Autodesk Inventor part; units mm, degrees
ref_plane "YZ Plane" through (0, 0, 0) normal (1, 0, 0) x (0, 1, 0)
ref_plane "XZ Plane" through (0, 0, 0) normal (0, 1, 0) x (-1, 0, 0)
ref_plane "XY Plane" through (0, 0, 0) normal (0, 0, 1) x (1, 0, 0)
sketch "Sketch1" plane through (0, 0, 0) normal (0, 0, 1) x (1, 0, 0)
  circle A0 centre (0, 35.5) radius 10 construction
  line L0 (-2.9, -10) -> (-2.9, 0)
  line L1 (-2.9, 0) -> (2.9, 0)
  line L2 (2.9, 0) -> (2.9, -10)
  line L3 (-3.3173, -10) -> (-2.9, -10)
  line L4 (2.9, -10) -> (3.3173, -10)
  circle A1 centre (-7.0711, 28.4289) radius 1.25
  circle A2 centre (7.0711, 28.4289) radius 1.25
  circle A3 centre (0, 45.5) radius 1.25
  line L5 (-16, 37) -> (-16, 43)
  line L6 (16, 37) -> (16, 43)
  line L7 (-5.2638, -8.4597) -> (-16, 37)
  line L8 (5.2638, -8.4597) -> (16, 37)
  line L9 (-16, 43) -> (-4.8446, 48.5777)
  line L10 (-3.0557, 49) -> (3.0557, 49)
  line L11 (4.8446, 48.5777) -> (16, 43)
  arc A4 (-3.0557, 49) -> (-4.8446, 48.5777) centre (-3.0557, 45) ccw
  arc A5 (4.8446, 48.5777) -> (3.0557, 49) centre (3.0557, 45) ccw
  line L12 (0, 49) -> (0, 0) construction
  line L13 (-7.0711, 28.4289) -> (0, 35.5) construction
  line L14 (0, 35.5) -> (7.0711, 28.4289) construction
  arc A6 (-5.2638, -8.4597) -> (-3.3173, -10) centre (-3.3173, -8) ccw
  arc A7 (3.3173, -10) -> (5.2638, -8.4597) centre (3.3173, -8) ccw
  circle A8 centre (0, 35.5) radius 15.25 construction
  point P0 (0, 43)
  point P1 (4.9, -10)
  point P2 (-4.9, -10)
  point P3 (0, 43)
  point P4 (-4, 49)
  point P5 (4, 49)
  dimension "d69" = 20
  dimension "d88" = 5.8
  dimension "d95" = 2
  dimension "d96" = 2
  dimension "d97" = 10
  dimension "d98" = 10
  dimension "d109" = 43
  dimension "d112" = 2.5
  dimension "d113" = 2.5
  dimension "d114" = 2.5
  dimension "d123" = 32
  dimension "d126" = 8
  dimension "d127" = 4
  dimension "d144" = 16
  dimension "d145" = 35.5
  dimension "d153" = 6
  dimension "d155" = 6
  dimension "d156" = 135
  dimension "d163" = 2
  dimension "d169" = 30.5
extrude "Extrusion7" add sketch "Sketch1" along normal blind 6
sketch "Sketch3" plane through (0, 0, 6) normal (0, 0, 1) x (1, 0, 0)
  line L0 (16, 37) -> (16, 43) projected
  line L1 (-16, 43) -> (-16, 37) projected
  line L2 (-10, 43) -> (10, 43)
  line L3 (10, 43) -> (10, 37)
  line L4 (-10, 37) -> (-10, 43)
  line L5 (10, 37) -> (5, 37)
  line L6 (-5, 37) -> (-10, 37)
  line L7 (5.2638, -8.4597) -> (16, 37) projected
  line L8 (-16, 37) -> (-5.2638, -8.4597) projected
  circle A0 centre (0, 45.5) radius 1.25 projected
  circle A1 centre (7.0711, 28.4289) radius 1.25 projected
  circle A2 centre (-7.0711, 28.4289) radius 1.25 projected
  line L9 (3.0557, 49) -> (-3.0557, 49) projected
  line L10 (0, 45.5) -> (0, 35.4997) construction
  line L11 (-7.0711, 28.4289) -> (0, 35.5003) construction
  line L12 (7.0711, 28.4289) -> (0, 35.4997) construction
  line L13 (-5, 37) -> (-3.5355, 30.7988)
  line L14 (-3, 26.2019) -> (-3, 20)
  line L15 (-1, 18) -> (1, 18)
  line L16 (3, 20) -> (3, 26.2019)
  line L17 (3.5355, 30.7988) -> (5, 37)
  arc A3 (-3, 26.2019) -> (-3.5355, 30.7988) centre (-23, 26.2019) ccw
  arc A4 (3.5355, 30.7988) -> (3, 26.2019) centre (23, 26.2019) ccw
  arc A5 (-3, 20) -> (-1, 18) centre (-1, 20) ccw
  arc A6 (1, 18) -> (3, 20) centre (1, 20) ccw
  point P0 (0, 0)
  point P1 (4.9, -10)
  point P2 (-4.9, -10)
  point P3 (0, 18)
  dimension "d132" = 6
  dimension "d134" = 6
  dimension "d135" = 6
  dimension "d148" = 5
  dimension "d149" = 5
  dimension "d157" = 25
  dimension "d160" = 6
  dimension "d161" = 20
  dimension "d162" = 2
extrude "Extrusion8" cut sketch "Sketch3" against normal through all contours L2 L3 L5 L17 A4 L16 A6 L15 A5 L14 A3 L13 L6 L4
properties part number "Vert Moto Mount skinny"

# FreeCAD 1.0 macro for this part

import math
import FreeCAD as App
import Part
import Sketcher

V = App.Vector
Q = App.Units.Quantity

doc = App.newDocument("Part")
body = doc.addObject("PartDesign::Body", "Body")

# Sketch on XY plane
sketch1 = doc.addObject("Sketcher::SketchObject", "Sketch")
body.addObject(sketch1)
sketch1.AttachmentSupport = (doc.XY_Plane, [""])
sketch1.MapMode = "FlatFace"
sketch1.addGeometry([
    Part.LineSegment(V(-3.32, -10, 0), V(-2.9, -10, 0)),  # 0
    Part.LineSegment(V(-2.9, -10, 0), V(-2.9, 0, 0)),  # 1
    Part.LineSegment(V(-2.9, 0, 0), V(2.9, 0, 0)),  # 2
    Part.LineSegment(V(2.9, 0, 0), V(2.9, -10, 0)),  # 3
    Part.LineSegment(V(2.9, -10, 0), V(3.32, -10, 0)),  # 4
    Part.ArcOfCircle(Part.Circle(V(3.32, -8, 0), V(0, 0, 1), 2), math.radians(-90), math.radians(-13)),  # 5
    Part.LineSegment(V(5.26, -8.46, 0), V(16, 37, 0)),  # 6
    Part.LineSegment(V(16, 37, 0), V(16, 43, 0)),  # 7
    Part.LineSegment(V(16, 43, 0), V(4.84, 48.58, 0)),  # 8
    Part.ArcOfCircle(Part.Circle(V(3.06, 45, 0), V(0, 0, 1), 4), math.radians(63), math.radians(90)),  # 9
    Part.LineSegment(V(3.06, 49, 0), V(-3.06, 49, 0)),  # 10
    Part.ArcOfCircle(Part.Circle(V(-3.06, 45, 0), V(0, 0, 1), 4), math.radians(90), math.radians(117)),  # 11
    Part.LineSegment(V(-4.84, 48.58, 0), V(-16, 43, 0)),  # 12
    Part.LineSegment(V(-16, 43, 0), V(-16, 37, 0)),  # 13
    Part.LineSegment(V(-16, 37, 0), V(-5.26, -8.46, 0)),  # 14
    Part.ArcOfCircle(Part.Circle(V(-3.32, -8, 0), V(0, 0, 1), 2), math.radians(-167), math.radians(-90)),  # 15
    Part.Circle(V(-7.07, 28.43, 0), V(0, 0, 1), 1.25),  # 16
    Part.Circle(V(7.07, 28.43, 0), V(0, 0, 1), 1.25),  # 17
    Part.Circle(V(0, 45.5, 0), V(0, 0, 1), 1.25),  # 18
], False)
sketch1.addConstraint([
    Sketcher.Constraint("Coincident", 0, 2, 1, 1),
    Sketcher.Constraint("Coincident", 1, 2, 2, 1),
    Sketcher.Constraint("Coincident", 2, 2, 3, 1),
    Sketcher.Constraint("Coincident", 3, 2, 4, 1),
    Sketcher.Constraint("Tangent", 4, 2, 5, 1),
    Sketcher.Constraint("Tangent", 5, 2, 6, 1),
    Sketcher.Constraint("Coincident", 6, 2, 7, 1),
    Sketcher.Constraint("Coincident", 7, 2, 8, 1),
    Sketcher.Constraint("Tangent", 8, 2, 9, 1),
    Sketcher.Constraint("Tangent", 9, 2, 10, 1),
    Sketcher.Constraint("Tangent", 10, 2, 11, 1),
    Sketcher.Constraint("Tangent", 11, 2, 12, 1),
    Sketcher.Constraint("Coincident", 12, 2, 13, 1),
    Sketcher.Constraint("Coincident", 13, 2, 14, 1),
    Sketcher.Constraint("Tangent", 14, 2, 15, 1),
    Sketcher.Constraint("Tangent", 15, 2, 0, 1),
    Sketcher.Constraint("Horizontal", 0),
    Sketcher.Constraint("Vertical", 1),
    Sketcher.Constraint("Horizontal", 2),
    Sketcher.Constraint("Vertical", 3),
    Sketcher.Constraint("Horizontal", 4),
    Sketcher.Constraint("Vertical", 7),
    Sketcher.Constraint("Horizontal", 10),
    Sketcher.Constraint("Vertical", 13),
    Sketcher.Constraint("Equal", 9, 11),
    Sketcher.Constraint("Equal", 5, 15),
    Sketcher.Constraint("Equal", 16, 17),
    Sketcher.Constraint("Equal", 17, 18),
    Sketcher.Constraint("Symmetric", 1, 2, 2, 2, -1, 1),
    Sketcher.Constraint("Symmetric", 5, 3, 15, 3, -2),
    Sketcher.Constraint("Symmetric", 16, 3, 17, 3, -2),
    Sketcher.Constraint("Symmetric", 8, 2, 11, 2, -2),
    Sketcher.Constraint("Symmetric", 6, 2, 13, 2, -2),
    Sketcher.Constraint("PointOnObject", 18, 3, -2),
    Sketcher.Constraint("Radius", 5, Q("2 mm")),
    Sketcher.Constraint("Radius", 9, Q("4 mm")),
    Sketcher.Constraint("Diameter", 16, Q("2.5 mm")),
    Sketcher.Constraint("DistanceY", 1, 1, 1, 2, Q("10 mm")),
    Sketcher.Constraint("DistanceY", 7, 1, 7, 2, Q("6 mm")),
    Sketcher.Constraint("DistanceX", 2, 1, 2, 2, Q("5.8 mm")),
    Sketcher.Constraint("DistanceX", -1, 1, 6, 2, Q("16 mm")),
    Sketcher.Constraint("DistanceY", -1, 1, 7, 2, Q("43 mm")),
    Sketcher.Constraint("DistanceY", 6, 2, 9, 3, Q("8 mm")),
    Sketcher.Constraint("DistanceY", 7, 2, 18, 3, Q("2.5 mm")),
    Sketcher.Constraint("Distance", 8, Q("12.472 mm")),
    Sketcher.Constraint("DistanceX", 0, 1, 0, 2, Q("0.4173 mm")),
    Sketcher.Constraint("DistanceX", 16, 3, -1, 1, Q("7.071 mm")),
    Sketcher.Constraint("DistanceY", -1, 1, 16, 3, Q("28.429 mm")),
])
pad1 = doc.addObject("PartDesign::Pad", "Pad")
body.addObject(pad1)
pad1.Profile = sketch1
pad1.Length = 6

# Sketch on XY plane
sketch2 = doc.addObject("Sketcher::SketchObject", "Sketch001")
body.addObject(sketch2)
sketch2.AttachmentSupport = (doc.XY_Plane, [""])
sketch2.MapMode = "FlatFace"
sketch2.AttachmentOffset = App.Placement(V(0, 0, 6), App.Rotation())
sketch2.addGeometry([
    Part.LineSegment(V(10, 43, 0), V(-10, 43, 0)),  # 0
    Part.LineSegment(V(-10, 43, 0), V(-10, 37, 0)),  # 1
    Part.LineSegment(V(-10, 37, 0), V(-5, 37, 0)),  # 2
    Part.LineSegment(V(-5, 37, 0), V(-3.5355, 30.7988, 0)),  # 3
    Part.ArcOfCircle(Part.Circle(V(-22.996743, 26.202089, 0), V(0, 0, 1), 19.996743), math.radians(-0.000542), math.radians(13.289594)),  # 4
    Part.LineSegment(V(-3, 26.2019, 0), V(-3, 20, 0)),  # 5
    Part.ArcOfCircle(Part.Circle(V(-1, 20, 0), V(0, 0, 1), 2), math.radians(180), math.radians(270)),  # 6
    Part.LineSegment(V(-1, 18, 0), V(1, 18, 0)),  # 7
    Part.ArcOfCircle(Part.Circle(V(1, 20, 0), V(0, 0, 1), 2), math.radians(-90), math.radians(0)),  # 8
    Part.LineSegment(V(3, 20, 0), V(3, 26.2019, 0)),  # 9
    Part.ArcOfCircle(Part.Circle(V(23.003214, 26.201335, 0), V(0, 0, 1), 20.003214), math.radians(166.712566), math.radians(179.998382)),  # 10
    Part.LineSegment(V(3.5355, 30.7988, 0), V(5, 37, 0)),  # 11
    Part.LineSegment(V(5, 37, 0), V(10, 37, 0)),  # 12
    Part.LineSegment(V(10, 37, 0), V(10, 43, 0)),  # 13
], False)
sketch2.addConstraint([
    Sketcher.Constraint("Coincident", 0, 2, 1, 1),
    Sketcher.Constraint("Coincident", 1, 2, 2, 1),
    Sketcher.Constraint("Coincident", 2, 2, 3, 1),
    Sketcher.Constraint("Coincident", 3, 2, 4, 2),
    Sketcher.Constraint("Coincident", 4, 1, 5, 1),
    Sketcher.Constraint("Coincident", 5, 2, 6, 1),
    Sketcher.Constraint("Coincident", 6, 2, 7, 1),
    Sketcher.Constraint("Coincident", 7, 2, 8, 1),
    Sketcher.Constraint("Coincident", 8, 2, 9, 1),
    Sketcher.Constraint("Coincident", 9, 2, 10, 2),
    Sketcher.Constraint("Coincident", 10, 1, 11, 1),
    Sketcher.Constraint("Coincident", 11, 2, 12, 1),
    Sketcher.Constraint("Coincident", 12, 2, 13, 1),
    Sketcher.Constraint("Coincident", 13, 2, 0, 1),
    Sketcher.Constraint("Horizontal", 0),
    Sketcher.Constraint("Vertical", 1),
    Sketcher.Constraint("Horizontal", 2),
    Sketcher.Constraint("Vertical", 5),
    Sketcher.Constraint("Horizontal", 7),
    Sketcher.Constraint("Vertical", 9),
    Sketcher.Constraint("Horizontal", 12),
    Sketcher.Constraint("Vertical", 13),
    Sketcher.Constraint("Radius", 6, Q("2 mm")),
    Sketcher.Constraint("Radius", 8, Q("2 mm")),
    Sketcher.Constraint("DistanceX", 0, 2, 0, 1, Q("20 mm")),
    Sketcher.Constraint("DistanceX", 2, 1, 2, 2, Q("5 mm")),
    Sketcher.Constraint("DistanceX", 7, 1, 7, 2, Q("2 mm")),
    Sketcher.Constraint("DistanceX", 12, 1, 12, 2, Q("5 mm")),
    Sketcher.Constraint("DistanceY", 1, 2, 1, 1, Q("6 mm")),
    Sketcher.Constraint("DistanceY", 13, 1, 13, 2, Q("6 mm")),
    Sketcher.Constraint("DistanceY", -1, 1, 6, 3, Q("20 mm")),
    Sketcher.Constraint("DistanceX", 2, 2, -1, 1, Q("5 mm")),
    Sketcher.Constraint("DistanceY", -1, 1, 5, 2, Q("20 mm")),
    Sketcher.Constraint("DistanceY", -1, 1, 8, 2, Q("20 mm")),
    Sketcher.Constraint("DistanceX", 6, 3, 8, 3, Q("2 mm")),
    Sketcher.Constraint("DistanceX", 2, 2, 8, 3, Q("6 mm")),
    Sketcher.Constraint("DistanceX", 6, 2, 8, 3, Q("2 mm")),
    Sketcher.Constraint("DistanceY", -1, 1, 0, 2, Q("43 mm")),
    Sketcher.Constraint("DistanceX", 4, 3, 10, 3, Q("46 mm")),
    Sketcher.Constraint("Radius", 4, Q("19.9967 mm")),
    Sketcher.Constraint("DistanceY", 5, 2, 5, 1, Q("6.202 mm")),
    Sketcher.Constraint("DistanceY", 9, 1, 9, 2, Q("6.202 mm")),
    Sketcher.Constraint("DistanceY", -1, 1, 4, 3, Q("26.202 mm")),
    Sketcher.Constraint("DistanceY", 4, 1, 3, 2, Q("4.597 mm")),
    Sketcher.Constraint("DistanceY", 9, 2, 10, 1, Q("4.597 mm")),
    Sketcher.Constraint("DistanceX", 3, 2, 10, 1, Q("7.071 mm")),
])
pocket1 = doc.addObject("PartDesign::Pocket", "Pocket")
body.addObject(pocket1)
pocket1.Profile = sketch2
pocket1.Type = "ThroughAll"

doc.recompute()
